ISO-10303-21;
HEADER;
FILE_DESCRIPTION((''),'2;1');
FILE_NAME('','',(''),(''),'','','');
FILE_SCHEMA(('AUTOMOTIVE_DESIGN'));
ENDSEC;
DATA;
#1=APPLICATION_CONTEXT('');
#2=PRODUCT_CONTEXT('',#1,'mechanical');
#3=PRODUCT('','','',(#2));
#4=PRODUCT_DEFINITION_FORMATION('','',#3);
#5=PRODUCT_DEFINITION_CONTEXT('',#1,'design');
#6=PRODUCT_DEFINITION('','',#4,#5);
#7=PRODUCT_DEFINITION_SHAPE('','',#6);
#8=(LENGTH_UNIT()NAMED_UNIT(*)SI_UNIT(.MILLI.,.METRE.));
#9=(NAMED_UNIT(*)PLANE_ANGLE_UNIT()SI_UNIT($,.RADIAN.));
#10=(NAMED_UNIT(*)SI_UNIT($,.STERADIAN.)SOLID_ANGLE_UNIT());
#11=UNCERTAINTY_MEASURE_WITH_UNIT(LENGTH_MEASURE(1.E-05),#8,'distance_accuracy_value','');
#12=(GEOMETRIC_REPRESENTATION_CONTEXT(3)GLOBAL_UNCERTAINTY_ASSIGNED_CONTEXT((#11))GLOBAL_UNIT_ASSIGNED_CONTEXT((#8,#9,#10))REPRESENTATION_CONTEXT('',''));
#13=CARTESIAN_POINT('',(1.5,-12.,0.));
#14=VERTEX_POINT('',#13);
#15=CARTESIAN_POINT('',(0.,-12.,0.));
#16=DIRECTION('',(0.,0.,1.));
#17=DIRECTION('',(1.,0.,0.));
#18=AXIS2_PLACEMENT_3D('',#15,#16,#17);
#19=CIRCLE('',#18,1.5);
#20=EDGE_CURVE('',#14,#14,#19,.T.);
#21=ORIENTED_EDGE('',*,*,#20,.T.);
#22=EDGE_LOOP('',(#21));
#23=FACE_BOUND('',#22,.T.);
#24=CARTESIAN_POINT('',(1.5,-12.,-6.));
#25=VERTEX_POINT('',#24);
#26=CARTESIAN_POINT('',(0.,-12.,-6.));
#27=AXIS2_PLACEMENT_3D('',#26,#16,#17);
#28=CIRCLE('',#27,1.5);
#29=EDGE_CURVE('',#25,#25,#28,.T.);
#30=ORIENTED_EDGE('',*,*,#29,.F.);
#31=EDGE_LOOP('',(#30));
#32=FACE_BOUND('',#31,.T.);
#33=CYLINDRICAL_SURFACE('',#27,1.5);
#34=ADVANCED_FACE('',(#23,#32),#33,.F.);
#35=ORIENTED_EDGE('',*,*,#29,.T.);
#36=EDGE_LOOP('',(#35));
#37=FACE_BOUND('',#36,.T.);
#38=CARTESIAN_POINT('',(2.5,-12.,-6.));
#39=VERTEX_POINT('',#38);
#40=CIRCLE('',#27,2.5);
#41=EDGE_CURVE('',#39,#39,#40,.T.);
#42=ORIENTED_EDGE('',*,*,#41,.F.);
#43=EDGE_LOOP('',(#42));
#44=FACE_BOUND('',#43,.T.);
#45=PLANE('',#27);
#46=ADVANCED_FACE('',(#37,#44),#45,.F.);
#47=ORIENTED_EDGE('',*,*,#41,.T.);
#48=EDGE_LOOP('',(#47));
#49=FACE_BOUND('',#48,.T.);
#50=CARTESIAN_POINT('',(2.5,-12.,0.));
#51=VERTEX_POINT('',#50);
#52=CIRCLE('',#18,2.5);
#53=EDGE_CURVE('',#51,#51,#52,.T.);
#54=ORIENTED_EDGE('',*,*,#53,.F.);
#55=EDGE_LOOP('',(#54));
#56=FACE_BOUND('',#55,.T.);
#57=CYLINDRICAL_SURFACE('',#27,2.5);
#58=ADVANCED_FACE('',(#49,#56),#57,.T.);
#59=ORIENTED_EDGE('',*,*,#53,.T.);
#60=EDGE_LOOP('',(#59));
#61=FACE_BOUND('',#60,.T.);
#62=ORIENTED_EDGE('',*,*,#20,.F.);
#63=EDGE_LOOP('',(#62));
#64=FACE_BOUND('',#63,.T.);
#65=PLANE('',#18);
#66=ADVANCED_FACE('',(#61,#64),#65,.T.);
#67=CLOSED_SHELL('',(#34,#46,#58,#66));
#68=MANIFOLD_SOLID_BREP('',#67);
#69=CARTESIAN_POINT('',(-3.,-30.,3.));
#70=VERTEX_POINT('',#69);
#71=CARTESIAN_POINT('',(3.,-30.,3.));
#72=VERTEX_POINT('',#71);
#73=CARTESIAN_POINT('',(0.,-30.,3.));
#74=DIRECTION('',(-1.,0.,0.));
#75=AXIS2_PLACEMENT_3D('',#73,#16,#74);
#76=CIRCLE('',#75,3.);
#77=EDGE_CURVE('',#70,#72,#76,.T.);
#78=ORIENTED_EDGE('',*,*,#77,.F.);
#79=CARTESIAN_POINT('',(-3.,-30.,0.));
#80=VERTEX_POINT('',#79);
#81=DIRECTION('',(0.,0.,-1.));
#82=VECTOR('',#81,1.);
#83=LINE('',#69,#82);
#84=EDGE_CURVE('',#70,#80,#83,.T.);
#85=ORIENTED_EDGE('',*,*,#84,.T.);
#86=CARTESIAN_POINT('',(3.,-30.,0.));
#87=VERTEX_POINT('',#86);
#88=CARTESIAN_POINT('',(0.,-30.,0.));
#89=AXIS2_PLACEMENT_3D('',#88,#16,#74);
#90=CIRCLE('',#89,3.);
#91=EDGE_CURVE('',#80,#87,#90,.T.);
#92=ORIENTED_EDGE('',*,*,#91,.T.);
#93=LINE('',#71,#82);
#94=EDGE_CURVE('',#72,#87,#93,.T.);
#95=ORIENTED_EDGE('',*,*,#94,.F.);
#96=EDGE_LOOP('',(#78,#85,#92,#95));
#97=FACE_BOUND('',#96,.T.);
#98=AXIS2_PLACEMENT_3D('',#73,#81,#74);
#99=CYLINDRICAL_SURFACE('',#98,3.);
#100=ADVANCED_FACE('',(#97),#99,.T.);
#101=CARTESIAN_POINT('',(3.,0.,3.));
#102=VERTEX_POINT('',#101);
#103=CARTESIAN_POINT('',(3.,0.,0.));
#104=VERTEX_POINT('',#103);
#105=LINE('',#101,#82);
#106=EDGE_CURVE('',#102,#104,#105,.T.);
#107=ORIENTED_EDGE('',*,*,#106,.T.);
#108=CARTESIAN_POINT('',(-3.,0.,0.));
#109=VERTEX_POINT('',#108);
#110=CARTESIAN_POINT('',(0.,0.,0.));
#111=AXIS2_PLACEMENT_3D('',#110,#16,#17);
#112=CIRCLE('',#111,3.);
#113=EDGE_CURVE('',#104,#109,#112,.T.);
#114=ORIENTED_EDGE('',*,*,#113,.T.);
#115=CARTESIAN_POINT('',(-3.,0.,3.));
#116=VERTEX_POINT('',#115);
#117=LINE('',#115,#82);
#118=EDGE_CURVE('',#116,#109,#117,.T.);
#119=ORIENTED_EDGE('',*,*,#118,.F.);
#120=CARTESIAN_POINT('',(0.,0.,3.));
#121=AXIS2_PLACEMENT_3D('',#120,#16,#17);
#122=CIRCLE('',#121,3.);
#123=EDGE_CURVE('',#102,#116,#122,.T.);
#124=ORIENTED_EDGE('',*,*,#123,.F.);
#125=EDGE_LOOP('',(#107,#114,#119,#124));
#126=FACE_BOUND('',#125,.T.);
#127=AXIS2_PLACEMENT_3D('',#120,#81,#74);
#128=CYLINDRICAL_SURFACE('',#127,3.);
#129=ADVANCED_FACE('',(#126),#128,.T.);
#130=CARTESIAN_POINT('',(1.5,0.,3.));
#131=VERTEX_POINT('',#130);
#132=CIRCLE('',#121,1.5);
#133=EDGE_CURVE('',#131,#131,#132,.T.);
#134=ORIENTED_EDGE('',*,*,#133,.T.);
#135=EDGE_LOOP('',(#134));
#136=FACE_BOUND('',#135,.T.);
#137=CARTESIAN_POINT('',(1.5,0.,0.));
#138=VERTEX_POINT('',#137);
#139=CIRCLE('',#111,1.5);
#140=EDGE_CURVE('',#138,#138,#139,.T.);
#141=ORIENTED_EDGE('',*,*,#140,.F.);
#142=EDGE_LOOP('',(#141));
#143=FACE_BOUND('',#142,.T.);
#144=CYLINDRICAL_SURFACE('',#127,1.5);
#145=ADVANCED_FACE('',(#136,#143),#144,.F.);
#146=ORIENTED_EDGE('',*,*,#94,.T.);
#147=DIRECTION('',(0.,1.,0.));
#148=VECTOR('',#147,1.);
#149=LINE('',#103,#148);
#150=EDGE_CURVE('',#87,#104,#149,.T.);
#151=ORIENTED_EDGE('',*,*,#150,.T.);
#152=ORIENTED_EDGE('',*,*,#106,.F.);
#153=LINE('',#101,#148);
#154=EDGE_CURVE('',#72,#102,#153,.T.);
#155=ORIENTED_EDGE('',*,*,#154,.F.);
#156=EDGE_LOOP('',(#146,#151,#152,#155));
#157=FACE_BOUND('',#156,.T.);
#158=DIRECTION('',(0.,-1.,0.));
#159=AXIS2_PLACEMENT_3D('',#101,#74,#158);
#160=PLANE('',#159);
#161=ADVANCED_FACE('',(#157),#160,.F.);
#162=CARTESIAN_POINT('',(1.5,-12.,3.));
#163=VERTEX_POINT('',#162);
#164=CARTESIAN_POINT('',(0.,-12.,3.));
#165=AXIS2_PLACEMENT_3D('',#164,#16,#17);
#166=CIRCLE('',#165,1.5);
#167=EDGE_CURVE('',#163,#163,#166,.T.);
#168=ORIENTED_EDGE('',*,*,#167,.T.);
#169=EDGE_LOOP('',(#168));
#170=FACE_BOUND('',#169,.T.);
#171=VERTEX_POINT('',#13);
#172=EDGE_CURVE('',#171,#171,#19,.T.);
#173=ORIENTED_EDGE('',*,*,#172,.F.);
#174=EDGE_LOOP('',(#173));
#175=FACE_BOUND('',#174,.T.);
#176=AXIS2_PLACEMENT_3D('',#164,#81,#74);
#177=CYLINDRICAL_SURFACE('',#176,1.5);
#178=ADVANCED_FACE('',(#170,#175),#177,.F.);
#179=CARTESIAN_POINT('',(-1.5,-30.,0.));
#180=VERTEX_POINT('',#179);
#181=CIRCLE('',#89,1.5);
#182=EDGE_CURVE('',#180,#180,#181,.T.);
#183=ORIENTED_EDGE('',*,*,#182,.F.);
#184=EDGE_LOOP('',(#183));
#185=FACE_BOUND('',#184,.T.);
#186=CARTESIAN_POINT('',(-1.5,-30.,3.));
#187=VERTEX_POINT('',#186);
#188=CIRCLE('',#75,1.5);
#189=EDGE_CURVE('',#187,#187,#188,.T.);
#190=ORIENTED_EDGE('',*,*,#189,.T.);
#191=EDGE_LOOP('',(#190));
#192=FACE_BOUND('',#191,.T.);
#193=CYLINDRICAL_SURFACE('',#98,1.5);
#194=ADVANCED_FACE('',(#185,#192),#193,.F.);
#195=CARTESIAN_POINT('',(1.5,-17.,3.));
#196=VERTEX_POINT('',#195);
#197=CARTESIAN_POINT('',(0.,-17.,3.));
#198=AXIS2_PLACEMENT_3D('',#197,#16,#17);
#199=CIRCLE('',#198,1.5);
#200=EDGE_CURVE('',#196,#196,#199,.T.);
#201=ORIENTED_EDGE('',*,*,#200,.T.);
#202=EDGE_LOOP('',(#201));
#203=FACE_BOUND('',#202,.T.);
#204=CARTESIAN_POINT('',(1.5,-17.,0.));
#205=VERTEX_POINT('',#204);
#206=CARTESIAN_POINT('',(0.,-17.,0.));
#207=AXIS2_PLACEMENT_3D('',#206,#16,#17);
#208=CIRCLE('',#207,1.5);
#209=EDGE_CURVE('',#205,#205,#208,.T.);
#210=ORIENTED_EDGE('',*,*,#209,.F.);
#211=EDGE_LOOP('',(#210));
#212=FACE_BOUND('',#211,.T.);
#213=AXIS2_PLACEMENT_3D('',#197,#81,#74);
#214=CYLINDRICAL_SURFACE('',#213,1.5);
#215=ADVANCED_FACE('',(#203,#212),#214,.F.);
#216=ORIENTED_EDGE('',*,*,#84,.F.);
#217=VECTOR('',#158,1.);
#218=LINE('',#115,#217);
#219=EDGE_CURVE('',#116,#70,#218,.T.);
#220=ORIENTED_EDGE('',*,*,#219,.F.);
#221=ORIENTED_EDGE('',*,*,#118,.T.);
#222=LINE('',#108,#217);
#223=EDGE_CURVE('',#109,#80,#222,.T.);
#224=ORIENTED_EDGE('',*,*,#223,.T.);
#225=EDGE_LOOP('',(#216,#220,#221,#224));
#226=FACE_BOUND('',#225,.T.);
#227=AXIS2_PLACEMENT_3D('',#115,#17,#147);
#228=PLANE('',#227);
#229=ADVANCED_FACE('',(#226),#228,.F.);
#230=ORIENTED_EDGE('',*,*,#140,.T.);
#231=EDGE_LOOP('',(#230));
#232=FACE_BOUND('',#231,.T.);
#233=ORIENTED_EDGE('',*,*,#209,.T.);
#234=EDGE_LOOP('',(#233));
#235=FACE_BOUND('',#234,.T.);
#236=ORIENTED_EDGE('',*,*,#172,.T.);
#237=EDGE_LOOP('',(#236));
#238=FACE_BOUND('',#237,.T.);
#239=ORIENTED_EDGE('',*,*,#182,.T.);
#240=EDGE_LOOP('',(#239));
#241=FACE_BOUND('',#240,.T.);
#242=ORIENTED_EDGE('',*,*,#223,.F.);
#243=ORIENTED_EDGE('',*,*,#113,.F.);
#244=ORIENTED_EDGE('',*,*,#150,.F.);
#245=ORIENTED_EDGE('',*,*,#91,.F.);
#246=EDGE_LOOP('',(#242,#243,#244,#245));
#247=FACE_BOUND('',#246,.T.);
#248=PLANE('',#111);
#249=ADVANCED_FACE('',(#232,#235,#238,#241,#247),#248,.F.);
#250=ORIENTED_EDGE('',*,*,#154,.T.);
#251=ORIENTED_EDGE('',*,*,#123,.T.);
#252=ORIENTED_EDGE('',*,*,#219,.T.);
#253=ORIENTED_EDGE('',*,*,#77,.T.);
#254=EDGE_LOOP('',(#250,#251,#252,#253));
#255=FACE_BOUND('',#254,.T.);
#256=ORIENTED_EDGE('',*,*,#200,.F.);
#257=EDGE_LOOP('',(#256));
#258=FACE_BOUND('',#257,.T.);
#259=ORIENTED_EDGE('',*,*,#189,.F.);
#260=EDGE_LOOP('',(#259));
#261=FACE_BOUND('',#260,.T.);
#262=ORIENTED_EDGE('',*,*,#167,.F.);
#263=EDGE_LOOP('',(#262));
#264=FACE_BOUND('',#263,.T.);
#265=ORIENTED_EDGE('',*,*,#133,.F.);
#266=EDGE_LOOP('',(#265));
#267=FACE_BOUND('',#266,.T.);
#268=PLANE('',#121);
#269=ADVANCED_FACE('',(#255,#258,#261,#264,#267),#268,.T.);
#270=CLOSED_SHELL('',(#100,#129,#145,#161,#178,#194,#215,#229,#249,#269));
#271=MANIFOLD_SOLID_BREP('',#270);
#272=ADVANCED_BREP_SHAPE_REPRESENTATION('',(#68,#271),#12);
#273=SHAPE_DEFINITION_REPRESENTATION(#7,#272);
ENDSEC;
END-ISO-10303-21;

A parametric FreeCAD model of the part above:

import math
import FreeCAD as App
import Part
import Sketcher
from FreeCAD import Vector
Q = App.Units.Quantity

doc = App.newDocument("Part")
params = doc.addObject("Spreadsheet::Sheet", "Params")
for row, (alias, value) in enumerate([
    ("sketch1_diameter", "3 mm"),
    ("sketch1_radius", "3 mm"),
    ("sketch1_height", "30 mm"),
    ("pad1_length", "3 mm"),
    ("sketch2_diameter", "5 mm"),
    ("sketch2_diameter2", "3 mm"),
    ("pad2_length", "6 mm"),
], start=1):
    params.set(f"A{row}", alias)
    params.set(f"B{row}", "=" + value)
    params.setAlias(f"B{row}", alias)

body = doc.addObject("PartDesign::Body", "Body")

# Sketch on XY plane
sketch1 = doc.addObject("Sketcher::SketchObject", "Sketch")
body.addObject(sketch1)
sketch1.AttachmentSupport = (doc.XY_Plane, [""])
sketch1.MapMode = "FlatFace"
sketch1.addGeometry([
    Part.LineSegment(Vector(-3, 0, 0), Vector(-3, -30, 0)),  # 0
    Part.ArcOfCircle(Part.Circle(Vector(0, -30, 0), Vector(0, 0, 1), 3), math.radians(180), math.radians(360)),  # 1
    Part.LineSegment(Vector(3, -30, 0), Vector(3, 0, 0)),  # 2
    Part.ArcOfCircle(Part.Circle(Vector(0, 0, 0), Vector(0, 0, 1), 3), math.radians(0), math.radians(180)),  # 3
    Part.Circle(Vector(0, -30, 0), Vector(0, 0, 1), 1.5),  # 4
    Part.Circle(Vector(0, -17, 0), Vector(0, 0, 1), 1.5),  # 5
    Part.Circle(Vector(0, -12, 0), Vector(0, 0, 1), 1.5),  # 6
    Part.Circle(Vector(0, 0, 0), Vector(0, 0, 1), 1.5),  # 7
], False)
sketch1.addConstraint([
    Sketcher.Constraint("Tangent", 0, 2, 1, 1),
    Sketcher.Constraint("Tangent", 1, 2, 2, 1),
    Sketcher.Constraint("Tangent", 2, 2, 3, 1),
    Sketcher.Constraint("Tangent", 3, 2, 0, 1),
    Sketcher.Constraint("Vertical", 0),
    Sketcher.Constraint("Vertical", 2),
    Sketcher.Constraint("Coincident", 3, 3, -1, 1),
    Sketcher.Constraint("Coincident", 7, 3, -1, 1),
    Sketcher.Constraint("Coincident", 4, 3, 1, 3),
    Sketcher.Constraint("Equal", 4, 5),
    Sketcher.Constraint("Equal", 5, 6),
    Sketcher.Constraint("Equal", 6, 7),
    Sketcher.Constraint("PointOnObject", 5, 3, -2),
    Sketcher.Constraint("PointOnObject", 6, 3, -2),
    Sketcher.Constraint("Diameter", 4, Q("3 mm")),
    Sketcher.Constraint("Radius", 1, Q("3 mm")),
    Sketcher.Constraint("DistanceY", 0, 2, 0, 1, Q("30 mm")),
    Sketcher.Constraint("DistanceY", 5, 3, -1, 1, Q("17 mm")),
    Sketcher.Constraint("DistanceY", 6, 3, -1, 1, Q("12 mm")),
])
sketch1.setExpression("Constraints[14]", "Params.sketch1_diameter")
sketch1.setExpression("Constraints[15]", "Params.sketch1_radius")
sketch1.setExpression("Constraints[16]", "Params.sketch1_height")
pad1 = doc.addObject("PartDesign::Pad", "Pad")
body.addObject(pad1)
pad1.Profile = sketch1
pad1.setExpression("Length", "Params.pad1_length")
body2 = doc.addObject("PartDesign::Body", "Body001")

# Sketch on XY plane
sketch2 = doc.addObject("Sketcher::SketchObject", "Sketch001")
body2.addObject(sketch2)
sketch2.AttachmentSupport = (doc.getObject("XY_Plane001"), [""])
sketch2.MapMode = "FlatFace"
sketch2.addGeometry([
    Part.Circle(Vector(0, -12, 0), Vector(0, 0, 1), 2.5),
    Part.Circle(Vector(0, -12, 0), Vector(0, 0, 1), 1.5),
], False)
sketch2.addConstraint([
    Sketcher.Constraint("Coincident", 1, 3, 0, 3),
    Sketcher.Constraint("PointOnObject", 0, 3, -2),
    Sketcher.Constraint("Diameter", 0, Q("5 mm")),
    Sketcher.Constraint("Diameter", 1, Q("3 mm")),
    Sketcher.Constraint("DistanceY", 0, 3, -1, 1, Q("12 mm")),
])
sketch2.setExpression("Constraints[2]", "Params.sketch2_diameter")
sketch2.setExpression("Constraints[3]", "Params.sketch2_diameter2")
pad2 = doc.addObject("PartDesign::Pad", "Pad001")
body2.addObject(pad2)
pad2.Profile = sketch2
pad2.setExpression("Length", "Params.pad2_length")
pad2.Reversed = True

doc.recompute()
